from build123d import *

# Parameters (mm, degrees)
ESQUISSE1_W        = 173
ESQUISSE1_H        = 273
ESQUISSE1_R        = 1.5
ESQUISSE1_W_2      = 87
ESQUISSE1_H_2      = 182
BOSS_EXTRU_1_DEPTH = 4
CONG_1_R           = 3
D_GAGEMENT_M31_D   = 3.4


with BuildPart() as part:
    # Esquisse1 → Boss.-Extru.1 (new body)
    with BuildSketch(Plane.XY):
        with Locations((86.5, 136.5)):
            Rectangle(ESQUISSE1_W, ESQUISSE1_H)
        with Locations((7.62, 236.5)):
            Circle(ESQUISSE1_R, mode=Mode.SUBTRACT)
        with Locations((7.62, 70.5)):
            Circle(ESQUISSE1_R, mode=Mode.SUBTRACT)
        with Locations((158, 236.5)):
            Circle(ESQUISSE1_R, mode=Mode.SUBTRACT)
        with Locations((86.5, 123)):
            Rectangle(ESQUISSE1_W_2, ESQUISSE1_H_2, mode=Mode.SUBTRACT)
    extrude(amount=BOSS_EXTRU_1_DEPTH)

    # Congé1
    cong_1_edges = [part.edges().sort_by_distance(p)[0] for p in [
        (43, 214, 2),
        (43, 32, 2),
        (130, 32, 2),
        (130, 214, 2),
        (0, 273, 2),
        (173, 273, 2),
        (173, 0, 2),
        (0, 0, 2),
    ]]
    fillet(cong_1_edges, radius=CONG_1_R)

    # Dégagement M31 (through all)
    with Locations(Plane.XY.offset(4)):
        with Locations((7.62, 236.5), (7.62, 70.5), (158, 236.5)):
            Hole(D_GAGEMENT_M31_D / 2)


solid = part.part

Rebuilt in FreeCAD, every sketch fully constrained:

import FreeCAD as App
import Part
import Sketcher


def edges_at(feature, points):
    """Names of the edges that pass closest to the given points."""
    edges = feature.Shape.Edges
    near = lambda p: min(range(len(edges)), key=lambda i: edges[i].distToShape(Part.Vertex(*p))[0])
    return sorted({f"Edge{near(p) + 1}" for p in points})


def add_polygon(sketch, points):
    """Adds a closed chain of lines whose ends are joined by coincident constraints."""
    first, n = sketch.GeometryCount, len(points)
    for a, b in zip(points, points[1:] + points[:1]):
        sketch.addGeometry(Part.LineSegment(App.Vector(*a, 0), App.Vector(*b, 0)), False)
    for i in range(n):
        sketch.addConstraint(Sketcher.Constraint("Coincident", first + i, 2, first + (i + 1) % n, 1))

doc = App.newDocument("Part")
body = doc.addObject("PartDesign::Body", "Body")

# Sketch on XY plane
sketch1 = body.newObject("Sketcher::SketchObject", "Sketch")
sketch1.AttachmentSupport = (doc.getObject("XY_Plane"), [""])
sketch1.MapMode = "FlatFace"
add_polygon(sketch1, [(0, 273), (0, 0), (173, 0), (173, 273)])  # lines 0-3
sketch1.addGeometry(Part.Circle(App.Vector(7.62, 70.5, 0), App.Vector(0, 0, 1), 1.5), False)  # 4
add_polygon(sketch1, [(130, 32), (43, 32), (43, 214), (130, 214)])  # lines 5-8
sketch1.addGeometry(Part.Circle(App.Vector(7.62, 236.5, 0), App.Vector(0, 0, 1), 1.5), False)  # 9
sketch1.addGeometry(Part.Circle(App.Vector(158, 236.5, 0), App.Vector(0, 0, 1), 1.5), False)  # 10
sketch1.addConstraint([
    Sketcher.Constraint("Vertical", 0),
    Sketcher.Constraint("Horizontal", 1),
    Sketcher.Constraint("Vertical", 2),
    Sketcher.Constraint("Horizontal", 3),
    Sketcher.Constraint("Horizontal", 5),
    Sketcher.Constraint("Vertical", 6),
    Sketcher.Constraint("Horizontal", 7),
    Sketcher.Constraint("Vertical", 8),
    Sketcher.Constraint("Coincident", 0, 2, -1, 1),
    Sketcher.Constraint("Equal", 4, 9),
    Sketcher.Constraint("Equal", 9, 10),
    Sketcher.Constraint("Horizontal", 9, 3, 10, 3),
    Sketcher.Constraint("Vertical", 4, 3, 9, 3),
    Sketcher.Constraint("Diameter", 4, 3.0),
    Sketcher.Constraint("DistanceX", 1, 1, 1, 2, 173.0),
    Sketcher.Constraint("DistanceX", 5, 2, 5, 1, 87.0),
    Sketcher.Constraint("DistanceY", 0, 2, 0, 1, 273.0),
    Sketcher.Constraint("DistanceY", 6, 1, 6, 2, 182.0),
    Sketcher.Constraint("DistanceX", -1, 1, 10, 3, 158.0),
    Sketcher.Constraint("DistanceX", -1, 1, 5, 2, 43.0),
    Sketcher.Constraint("DistanceY", -1, 1, 5, 2, 32.0),
    Sketcher.Constraint("DistanceY", 4, 3, 9, 3, 166.0),
    Sketcher.Constraint("DistanceY", -1, 1, 4, 3, 70.5),
    Sketcher.Constraint("DistanceX", -1, 1, 4, 3, 7.62),
])
pad1 = body.newObject("PartDesign::Pad", "Pad")
pad1.Profile = sketch1
pad1.Length = 4
doc.recompute()

fillet = body.newObject("PartDesign::Fillet", "Fillet")
fillet.Base = (pad1, edges_at(pad1, [
    (43, 214, 2),
    (43, 32, 2),
    (130, 32, 2),
    (130, 214, 2),
    (0, 273, 2),
    (173, 273, 2),
    (173, 0, 2),
    (0, 0, 2),
]))
fillet.Radius = 3

# Sketch on XY plane
sketch2 = body.newObject("Sketcher::SketchObject", "Sketch001")
sketch2.AttachmentSupport = (doc.getObject("XY_Plane"), [""])
sketch2.MapMode = "FlatFace"
sketch2.AttachmentOffset = App.Placement(App.Vector(0, 0, 4), App.Rotation())
sketch2.addGeometry([
    Part.Circle(App.Vector(7.62, 236.5, 0), App.Vector(0, 0, 1), 1.7),
    Part.Circle(App.Vector(7.62, 70.5, 0), App.Vector(0, 0, 1), 1.7),
    Part.Circle(App.Vector(158, 236.5, 0), App.Vector(0, 0, 1), 1.7),
], False)
sketch2.addConstraint([
    Sketcher.Constraint("Equal", 0, 1),
    Sketcher.Constraint("Equal", 1, 2),
    Sketcher.Constraint("Horizontal", 0, 3, 2, 3),
    Sketcher.Constraint("Vertical", 0, 3, 1, 3),
    Sketcher.Constraint("Diameter", 0, 3.4),
    Sketcher.Constraint("DistanceX", -1, 1, 2, 3, 158.0),
    Sketcher.Constraint("DistanceY", 1, 3, 0, 3, 166.0),
    Sketcher.Constraint("DistanceY", -1, 1, 0, 3, 236.5),
    Sketcher.Constraint("DistanceX", -1, 1, 0, 3, 7.62),
])
doc.recompute()
hole = body.newObject("PartDesign::Hole", "Hole")
hole.Profile = sketch2
hole.ThreadType = "None"
hole.Diameter = 3.4
hole.DepthType = "ThroughAll"

doc.recompute()
